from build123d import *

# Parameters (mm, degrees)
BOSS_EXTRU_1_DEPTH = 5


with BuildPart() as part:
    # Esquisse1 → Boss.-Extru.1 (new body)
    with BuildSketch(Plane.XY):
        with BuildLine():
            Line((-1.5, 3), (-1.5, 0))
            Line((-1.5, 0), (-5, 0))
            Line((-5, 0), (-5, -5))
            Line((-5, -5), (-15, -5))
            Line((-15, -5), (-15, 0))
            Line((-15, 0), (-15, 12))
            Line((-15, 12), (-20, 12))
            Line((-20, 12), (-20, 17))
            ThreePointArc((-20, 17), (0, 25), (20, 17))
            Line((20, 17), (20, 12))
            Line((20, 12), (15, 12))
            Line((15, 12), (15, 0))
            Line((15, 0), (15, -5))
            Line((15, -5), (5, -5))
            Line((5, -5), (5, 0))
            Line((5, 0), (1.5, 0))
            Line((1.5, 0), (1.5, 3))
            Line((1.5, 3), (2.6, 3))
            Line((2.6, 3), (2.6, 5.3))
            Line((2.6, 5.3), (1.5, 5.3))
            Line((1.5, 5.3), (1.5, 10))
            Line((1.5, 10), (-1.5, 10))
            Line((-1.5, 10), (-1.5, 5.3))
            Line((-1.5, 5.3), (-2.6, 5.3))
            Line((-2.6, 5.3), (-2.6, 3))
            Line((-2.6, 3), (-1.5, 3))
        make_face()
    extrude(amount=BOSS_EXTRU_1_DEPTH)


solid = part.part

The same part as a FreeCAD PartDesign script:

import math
import FreeCAD as App
import Part
import Sketcher
from FreeCAD import Vector

doc = App.newDocument("Part")
body = doc.addObject("PartDesign::Body", "Body")

sketch1 = body.newObject("Sketcher::SketchObject", "Sketch")
sketch1.AttachmentSupport = (doc.getObject("XY_Plane"), [""])
sketch1.MapMode = "FlatFace"
sketch1.addGeometry([
    Part.LineSegment(Vector(-1.5, 0, 0), Vector(-1.5, 3, 0)),
    Part.LineSegment(Vector(-1.5, 3, 0), Vector(-2.6, 3, 0)),
    Part.LineSegment(Vector(-2.6, 3, 0), Vector(-2.6, 5.3, 0)),
    Part.LineSegment(Vector(-2.6, 5.3, 0), Vector(-1.5, 5.3, 0)),
    Part.LineSegment(Vector(-1.5, 5.3, 0), Vector(-1.5, 10, 0)),
    Part.LineSegment(Vector(-1.5, 10, 0), Vector(1.5, 10, 0)),
    Part.LineSegment(Vector(1.5, 10, 0), Vector(1.5, 5.3, 0)),
    Part.LineSegment(Vector(1.5, 5.3, 0), Vector(2.6, 5.3, 0)),
    Part.LineSegment(Vector(2.6, 5.3, 0), Vector(2.6, 3, 0)),
    Part.LineSegment(Vector(2.6, 3, 0), Vector(1.5, 3, 0)),
    Part.LineSegment(Vector(1.5, 3, 0), Vector(1.5, 0, 0)),
    Part.LineSegment(Vector(1.5, 0, 0), Vector(5, 0, 0)),
    Part.LineSegment(Vector(5, 0, 0), Vector(5, -5, 0)),
    Part.LineSegment(Vector(5, -5, 0), Vector(15, -5, 0)),
    Part.LineSegment(Vector(15, -5, 0), Vector(15, 12, 0)),
    Part.LineSegment(Vector(15, 12, 0), Vector(20, 12, 0)),
    Part.LineSegment(Vector(20, 12, 0), Vector(20, 17, 0)),
    Part.ArcOfCircle(Part.Circle(Vector(0, -4, 0), Vector(0, 0, 1), 29), math.radians(46.397181), math.radians(133.602819)),
    Part.LineSegment(Vector(-20, 17, 0), Vector(-20, 12, 0)),
    Part.LineSegment(Vector(-20, 12, 0), Vector(-15, 12, 0)),
    Part.LineSegment(Vector(-15, 12, 0), Vector(-15, -5, 0)),
    Part.LineSegment(Vector(-15, -5, 0), Vector(-5, -5, 0)),
    Part.LineSegment(Vector(-5, -5, 0), Vector(-5, 0, 0)),
    Part.LineSegment(Vector(-5, 0, 0), Vector(-1.5, 0, 0)),
], False)
sketch1.addConstraint([
    Sketcher.Constraint("Coincident", 0, 2, 1, 1),
    Sketcher.Constraint("Coincident", 1, 2, 2, 1),
    Sketcher.Constraint("Coincident", 2, 2, 3, 1),
    Sketcher.Constraint("Coincident", 3, 2, 4, 1),
    Sketcher.Constraint("Coincident", 4, 2, 5, 1),
    Sketcher.Constraint("Coincident", 5, 2, 6, 1),
    Sketcher.Constraint("Coincident", 6, 2, 7, 1),
    Sketcher.Constraint("Coincident", 7, 2, 8, 1),
    Sketcher.Constraint("Coincident", 8, 2, 9, 1),
    Sketcher.Constraint("Coincident", 9, 2, 10, 1),
    Sketcher.Constraint("Coincident", 10, 2, 11, 1),
    Sketcher.Constraint("Coincident", 11, 2, 12, 1),
    Sketcher.Constraint("Coincident", 12, 2, 13, 1),
    Sketcher.Constraint("Coincident", 13, 2, 14, 1),
    Sketcher.Constraint("Coincident", 14, 2, 15, 1),
    Sketcher.Constraint("Coincident", 15, 2, 16, 1),
    Sketcher.Constraint("Coincident", 16, 2, 17, 1),
    Sketcher.Constraint("Coincident", 17, 2, 18, 1),
    Sketcher.Constraint("Coincident", 18, 2, 19, 1),
    Sketcher.Constraint("Coincident", 19, 2, 20, 1),
    Sketcher.Constraint("Coincident", 20, 2, 21, 1),
    Sketcher.Constraint("Coincident", 21, 2, 22, 1),
    Sketcher.Constraint("Coincident", 22, 2, 23, 1),
    Sketcher.Constraint("Coincident", 23, 2, 0, 1),
    Sketcher.Constraint("Vertical", 0),
    Sketcher.Constraint("Horizontal", 1),
    Sketcher.Constraint("Vertical", 2),
    Sketcher.Constraint("Horizontal", 3),
    Sketcher.Constraint("Vertical", 4),
    Sketcher.Constraint("Horizontal", 5),
    Sketcher.Constraint("Vertical", 6),
    Sketcher.Constraint("Horizontal", 7),
    Sketcher.Constraint("Vertical", 8),
    Sketcher.Constraint("Horizontal", 9),
    Sketcher.Constraint("Vertical", 10),
    Sketcher.Constraint("Horizontal", 11),
    Sketcher.Constraint("Vertical", 12),
    Sketcher.Constraint("Horizontal", 13),
    Sketcher.Constraint("Vertical", 14),
    Sketcher.Constraint("Horizontal", 15),
    Sketcher.Constraint("Vertical", 16),
    Sketcher.Constraint("Vertical", 18),
    Sketcher.Constraint("Horizontal", 19),
    Sketcher.Constraint("Vertical", 20),
    Sketcher.Constraint("Horizontal", 21),
    Sketcher.Constraint("Vertical", 22),
    Sketcher.Constraint("Horizontal", 23),
    Sketcher.Constraint("Symmetric", 11, 2, 22, 2, -1, 1),
    Sketcher.Constraint("Symmetric", 3, 2, 6, 2, -2),
    Sketcher.Constraint("Symmetric", 1, 2, 8, 2, -2),
    Sketcher.Constraint("Symmetric", 16, 2, 17, 2, -2),
    Sketcher.Constraint("Symmetric", 14, 2, 19, 2, -2),
    Sketcher.Constraint("Symmetric", 10, 2, 23, 2, -2),
    Sketcher.Constraint("Horizontal", 13, 2, 20, 2),
    Sketcher.Constraint("Vertical", 0, 2, 3, 2),
    Sketcher.Constraint("Equal", 5, 0),
    Sketcher.Constraint("Equal", 19, 12),
    Sketcher.Constraint("Equal", 12, 16),
    Sketcher.Constraint("Radius", 17, 29.0),
    Sketcher.Constraint("DistanceX", 5, 1, 5, 2, 3.0),
    Sketcher.Constraint("DistanceX", 13, 1, 13, 2, 10.0),
    Sketcher.Constraint("DistanceX", 15, 1, 15, 2, 5.0),
    Sketcher.Constraint("DistanceY", 14, 1, 14, 2, 17.0),
    Sketcher.Constraint("DistanceX", 1, 2, 1, 1, 1.1),
    Sketcher.Constraint("DistanceX", 11, 1, 11, 2, 3.5),
    Sketcher.Constraint("DistanceY", 2, 1, 2, 2, 2.3),
    Sketcher.Constraint("DistanceY", 4, 1, 4, 2, 4.7),
])
pad1 = body.newObject("PartDesign::Pad", "Pad")
pad1.Profile = sketch1
pad1.Length = 5

doc.recompute()
